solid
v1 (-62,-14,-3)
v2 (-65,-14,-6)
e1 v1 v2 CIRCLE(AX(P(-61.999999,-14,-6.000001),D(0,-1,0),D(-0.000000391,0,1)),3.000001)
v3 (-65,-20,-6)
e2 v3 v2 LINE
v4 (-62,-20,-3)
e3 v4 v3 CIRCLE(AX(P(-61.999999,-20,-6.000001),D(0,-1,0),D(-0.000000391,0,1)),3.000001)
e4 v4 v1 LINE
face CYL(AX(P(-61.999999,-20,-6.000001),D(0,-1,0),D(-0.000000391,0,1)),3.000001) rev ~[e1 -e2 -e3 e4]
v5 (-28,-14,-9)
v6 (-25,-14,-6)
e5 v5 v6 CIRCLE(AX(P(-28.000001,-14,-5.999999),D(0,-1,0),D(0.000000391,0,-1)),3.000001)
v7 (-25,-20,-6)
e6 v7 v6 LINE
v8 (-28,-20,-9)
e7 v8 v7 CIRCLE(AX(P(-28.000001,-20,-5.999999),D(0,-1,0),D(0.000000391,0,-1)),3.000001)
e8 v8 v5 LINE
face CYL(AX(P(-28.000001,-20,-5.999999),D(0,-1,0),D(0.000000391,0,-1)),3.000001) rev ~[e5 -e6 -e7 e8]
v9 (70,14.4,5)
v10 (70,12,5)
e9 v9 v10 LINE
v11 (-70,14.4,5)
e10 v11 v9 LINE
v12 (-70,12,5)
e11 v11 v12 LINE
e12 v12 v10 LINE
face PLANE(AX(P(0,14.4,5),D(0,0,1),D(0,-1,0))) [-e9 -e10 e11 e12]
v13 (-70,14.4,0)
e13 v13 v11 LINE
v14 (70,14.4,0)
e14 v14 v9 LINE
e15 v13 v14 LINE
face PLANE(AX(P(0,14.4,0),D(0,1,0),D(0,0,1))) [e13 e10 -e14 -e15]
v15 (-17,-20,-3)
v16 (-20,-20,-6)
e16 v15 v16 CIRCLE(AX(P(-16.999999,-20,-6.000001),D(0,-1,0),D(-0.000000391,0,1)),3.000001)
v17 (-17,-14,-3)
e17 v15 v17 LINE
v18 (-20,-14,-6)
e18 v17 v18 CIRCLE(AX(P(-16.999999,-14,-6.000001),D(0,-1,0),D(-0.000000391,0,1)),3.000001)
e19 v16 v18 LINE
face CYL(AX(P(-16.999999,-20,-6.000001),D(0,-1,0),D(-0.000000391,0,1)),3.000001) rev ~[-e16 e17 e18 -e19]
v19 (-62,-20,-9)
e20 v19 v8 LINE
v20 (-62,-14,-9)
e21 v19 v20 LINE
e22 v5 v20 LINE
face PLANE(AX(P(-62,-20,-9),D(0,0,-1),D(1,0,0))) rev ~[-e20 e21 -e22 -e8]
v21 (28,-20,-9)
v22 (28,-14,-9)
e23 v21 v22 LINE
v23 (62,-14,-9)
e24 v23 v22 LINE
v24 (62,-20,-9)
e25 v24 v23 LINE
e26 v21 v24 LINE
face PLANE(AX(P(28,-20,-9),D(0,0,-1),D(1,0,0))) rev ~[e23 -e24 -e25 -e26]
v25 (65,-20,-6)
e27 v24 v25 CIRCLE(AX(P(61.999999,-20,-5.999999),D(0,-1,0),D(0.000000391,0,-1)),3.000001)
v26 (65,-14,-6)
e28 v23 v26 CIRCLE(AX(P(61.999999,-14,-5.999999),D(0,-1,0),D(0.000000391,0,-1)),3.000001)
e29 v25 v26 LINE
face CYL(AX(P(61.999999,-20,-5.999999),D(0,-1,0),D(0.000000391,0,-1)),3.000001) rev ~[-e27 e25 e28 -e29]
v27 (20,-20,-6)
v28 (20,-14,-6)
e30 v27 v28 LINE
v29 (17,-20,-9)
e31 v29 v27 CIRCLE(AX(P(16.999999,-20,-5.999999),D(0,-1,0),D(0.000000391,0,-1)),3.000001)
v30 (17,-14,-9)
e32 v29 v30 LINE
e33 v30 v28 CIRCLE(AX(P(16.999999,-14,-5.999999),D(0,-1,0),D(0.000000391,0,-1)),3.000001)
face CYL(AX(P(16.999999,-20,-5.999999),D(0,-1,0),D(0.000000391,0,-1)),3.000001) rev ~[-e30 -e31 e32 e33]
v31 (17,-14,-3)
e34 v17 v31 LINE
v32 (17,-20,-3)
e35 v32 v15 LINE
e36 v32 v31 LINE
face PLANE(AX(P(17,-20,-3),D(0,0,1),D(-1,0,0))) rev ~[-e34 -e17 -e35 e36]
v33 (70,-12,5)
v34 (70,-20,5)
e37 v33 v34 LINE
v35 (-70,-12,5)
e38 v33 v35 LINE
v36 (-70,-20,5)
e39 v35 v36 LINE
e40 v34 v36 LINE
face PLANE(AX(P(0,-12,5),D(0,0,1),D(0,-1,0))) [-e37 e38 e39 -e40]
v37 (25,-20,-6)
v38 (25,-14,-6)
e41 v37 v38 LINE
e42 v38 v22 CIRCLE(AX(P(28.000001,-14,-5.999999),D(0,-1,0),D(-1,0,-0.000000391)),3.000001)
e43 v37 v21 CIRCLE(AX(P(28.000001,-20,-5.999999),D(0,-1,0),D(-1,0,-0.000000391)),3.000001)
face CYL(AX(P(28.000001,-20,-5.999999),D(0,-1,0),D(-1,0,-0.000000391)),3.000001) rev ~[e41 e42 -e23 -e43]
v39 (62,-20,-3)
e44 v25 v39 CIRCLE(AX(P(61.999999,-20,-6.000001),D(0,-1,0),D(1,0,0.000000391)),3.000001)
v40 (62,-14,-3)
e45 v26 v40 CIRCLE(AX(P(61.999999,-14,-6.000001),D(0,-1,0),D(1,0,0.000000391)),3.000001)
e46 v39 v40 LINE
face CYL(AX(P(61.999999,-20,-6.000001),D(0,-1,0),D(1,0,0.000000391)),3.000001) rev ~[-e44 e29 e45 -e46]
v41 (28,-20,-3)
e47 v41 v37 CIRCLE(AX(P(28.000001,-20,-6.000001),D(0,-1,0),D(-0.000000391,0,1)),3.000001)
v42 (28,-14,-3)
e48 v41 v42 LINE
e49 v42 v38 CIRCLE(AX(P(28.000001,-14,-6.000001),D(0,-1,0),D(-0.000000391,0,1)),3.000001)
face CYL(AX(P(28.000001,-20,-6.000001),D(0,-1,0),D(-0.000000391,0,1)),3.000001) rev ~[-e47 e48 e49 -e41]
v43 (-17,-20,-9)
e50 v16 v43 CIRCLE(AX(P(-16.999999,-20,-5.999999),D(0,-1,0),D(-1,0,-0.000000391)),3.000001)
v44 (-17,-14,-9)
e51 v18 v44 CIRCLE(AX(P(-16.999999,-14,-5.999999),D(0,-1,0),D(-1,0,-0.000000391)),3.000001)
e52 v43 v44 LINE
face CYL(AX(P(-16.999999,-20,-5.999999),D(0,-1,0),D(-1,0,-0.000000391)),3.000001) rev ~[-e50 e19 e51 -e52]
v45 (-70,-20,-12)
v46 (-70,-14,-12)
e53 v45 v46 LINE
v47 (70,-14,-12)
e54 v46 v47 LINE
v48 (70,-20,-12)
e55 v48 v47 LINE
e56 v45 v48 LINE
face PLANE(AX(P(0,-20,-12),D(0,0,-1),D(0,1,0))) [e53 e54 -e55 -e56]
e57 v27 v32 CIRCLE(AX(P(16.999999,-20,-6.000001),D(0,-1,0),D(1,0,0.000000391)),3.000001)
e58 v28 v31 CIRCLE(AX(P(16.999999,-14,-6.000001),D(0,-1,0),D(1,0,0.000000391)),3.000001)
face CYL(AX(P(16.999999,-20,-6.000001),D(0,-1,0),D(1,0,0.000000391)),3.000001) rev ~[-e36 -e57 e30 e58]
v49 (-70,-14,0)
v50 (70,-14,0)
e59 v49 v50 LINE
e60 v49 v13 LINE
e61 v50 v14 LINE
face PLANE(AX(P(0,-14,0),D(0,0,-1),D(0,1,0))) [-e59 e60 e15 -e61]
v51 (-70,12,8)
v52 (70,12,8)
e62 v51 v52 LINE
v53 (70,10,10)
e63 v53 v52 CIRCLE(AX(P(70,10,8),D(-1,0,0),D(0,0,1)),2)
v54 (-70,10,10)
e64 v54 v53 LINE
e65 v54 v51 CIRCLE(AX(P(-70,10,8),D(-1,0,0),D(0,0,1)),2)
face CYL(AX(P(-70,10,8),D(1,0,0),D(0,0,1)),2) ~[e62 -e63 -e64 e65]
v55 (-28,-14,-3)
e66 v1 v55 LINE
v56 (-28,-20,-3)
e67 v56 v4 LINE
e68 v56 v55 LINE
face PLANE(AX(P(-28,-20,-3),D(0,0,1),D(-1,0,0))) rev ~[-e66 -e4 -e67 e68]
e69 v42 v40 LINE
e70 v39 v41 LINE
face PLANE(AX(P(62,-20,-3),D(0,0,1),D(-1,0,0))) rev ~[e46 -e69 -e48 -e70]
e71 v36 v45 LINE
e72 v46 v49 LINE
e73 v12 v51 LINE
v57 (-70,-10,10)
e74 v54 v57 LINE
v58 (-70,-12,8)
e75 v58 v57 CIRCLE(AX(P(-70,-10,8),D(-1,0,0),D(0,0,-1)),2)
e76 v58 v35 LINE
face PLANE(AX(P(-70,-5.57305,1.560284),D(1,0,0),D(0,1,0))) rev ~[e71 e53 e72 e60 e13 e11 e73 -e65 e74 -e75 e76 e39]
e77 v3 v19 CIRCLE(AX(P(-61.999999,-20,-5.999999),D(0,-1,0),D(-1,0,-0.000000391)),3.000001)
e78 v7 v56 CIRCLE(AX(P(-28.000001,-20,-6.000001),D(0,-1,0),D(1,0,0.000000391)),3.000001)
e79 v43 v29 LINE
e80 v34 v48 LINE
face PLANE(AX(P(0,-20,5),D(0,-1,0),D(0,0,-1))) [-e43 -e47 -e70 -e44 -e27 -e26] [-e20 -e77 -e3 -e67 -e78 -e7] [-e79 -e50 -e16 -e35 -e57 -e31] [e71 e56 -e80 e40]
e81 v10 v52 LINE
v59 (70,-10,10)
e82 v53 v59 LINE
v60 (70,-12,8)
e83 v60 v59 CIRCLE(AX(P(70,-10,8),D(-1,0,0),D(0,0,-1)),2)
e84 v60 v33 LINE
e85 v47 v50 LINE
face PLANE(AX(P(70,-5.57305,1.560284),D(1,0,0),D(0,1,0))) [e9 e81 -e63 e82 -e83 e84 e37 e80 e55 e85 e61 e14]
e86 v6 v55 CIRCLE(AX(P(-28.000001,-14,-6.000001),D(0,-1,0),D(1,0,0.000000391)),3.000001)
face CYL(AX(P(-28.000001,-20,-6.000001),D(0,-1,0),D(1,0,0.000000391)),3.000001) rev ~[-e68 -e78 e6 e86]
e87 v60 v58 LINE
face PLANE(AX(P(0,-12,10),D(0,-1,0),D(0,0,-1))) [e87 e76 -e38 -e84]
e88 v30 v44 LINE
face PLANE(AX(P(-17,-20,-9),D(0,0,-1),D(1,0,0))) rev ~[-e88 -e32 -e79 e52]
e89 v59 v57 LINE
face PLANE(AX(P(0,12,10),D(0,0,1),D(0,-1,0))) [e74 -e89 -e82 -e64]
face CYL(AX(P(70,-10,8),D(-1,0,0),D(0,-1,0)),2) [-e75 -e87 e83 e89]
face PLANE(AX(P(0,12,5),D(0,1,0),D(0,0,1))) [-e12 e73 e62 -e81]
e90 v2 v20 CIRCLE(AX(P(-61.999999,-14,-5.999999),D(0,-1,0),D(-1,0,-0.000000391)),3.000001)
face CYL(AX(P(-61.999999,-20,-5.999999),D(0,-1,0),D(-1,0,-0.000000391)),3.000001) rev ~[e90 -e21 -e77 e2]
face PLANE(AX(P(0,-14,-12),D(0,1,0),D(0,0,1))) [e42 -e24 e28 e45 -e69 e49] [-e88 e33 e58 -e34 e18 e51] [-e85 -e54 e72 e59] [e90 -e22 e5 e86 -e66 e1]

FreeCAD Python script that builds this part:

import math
import FreeCAD as App
import Part
import Sketcher


def edges_at(feature, points):
    """Names of the edges that pass closest to the given points."""
    edges = feature.Shape.Edges
    near = lambda p: min(range(len(edges)), key=lambda i: edges[i].distToShape(Part.Vertex(*p))[0])
    return sorted({f"Edge{near(p) + 1}" for p in points})


def add_polygon(sketch, points):
    """Adds a closed chain of lines whose ends are joined by coincident constraints."""
    first, n = sketch.GeometryCount, len(points)
    for a, b in zip(points, points[1:] + points[:1]):
        sketch.addGeometry(Part.LineSegment(App.Vector(*a, 0), App.Vector(*b, 0)), False)
    for i in range(n):
        sketch.addConstraint(Sketcher.Constraint("Coincident", first + i, 2, first + (i + 1) % n, 1))

doc = App.newDocument("Part")
params = doc.addObject("Spreadsheet::Sheet", "Params")
for row, (alias, value) in enumerate([
    ("sketch1_width", "6 mm"),
    ("sketch1_width2", "24 mm"),
    ("sketch1_width3", "8 mm"),
    ("sketch1_height", "17 mm"),
    ("sketch1_height2", "12 mm"),
    ("pad1_length", "140 mm"),
    ("fillet_radius", "2 mm"),
    ("sketch2_radius", "3.000001 mm"),
    ("sketch2_width", "34 mm"),
    ("pocket1_length", "25 mm"),
], start=1):
    params.set(f"A{row}", alias)
    params.set(f"B{row}", "=" + value)
    params.setAlias(f"B{row}", alias)

body = doc.addObject("PartDesign::Body", "Body")

# Sketch on YZ plane
sketch1 = body.newObject("Sketcher::SketchObject", "Sketch")
sketch1.AttachmentSupport = (doc.getObject("YZ_Plane"), [""])
sketch1.MapMode = "FlatFace"
add_polygon(sketch1, [(-20, 5), (-20, -12), (-14, -12), (-14, 0), (14.4, 0), (14.4, 5), (12, 5), (12, 10), (-12, 10), (-12, 5)])  # lines 0-9
sketch1.addConstraint([
    Sketcher.Constraint("Vertical", 0),
    Sketcher.Constraint("Horizontal", 1),
    Sketcher.Constraint("Vertical", 2),
    Sketcher.Constraint("Horizontal", 3),
    Sketcher.Constraint("Vertical", 4),
    Sketcher.Constraint("Horizontal", 5),
    Sketcher.Constraint("Vertical", 6),
    Sketcher.Constraint("Horizontal", 7),
    Sketcher.Constraint("Vertical", 8),
    Sketcher.Constraint("Horizontal", 9),
    Sketcher.Constraint("Symmetric", 5, 2, 8, 2, -2),
    Sketcher.Constraint("PointOnObject", 2, 2, -1),
    Sketcher.Constraint("Equal", 4, 6),
    Sketcher.Constraint("DistanceX", 1, 1, 1, 2, 6.0),
    Sketcher.Constraint("DistanceX", 7, 2, 7, 1, 24.0),
    Sketcher.Constraint("DistanceX", 9, 2, 9, 1, 8.0),
    Sketcher.Constraint("DistanceY", 0, 2, 0, 1, 17.0),
    Sketcher.Constraint("DistanceY", 2, 1, 2, 2, 12.0),
    Sketcher.Constraint("DistanceX", 3, 1, 3, 2, 28.4),
])
sketch1.setExpression("Constraints[23]", "Params.sketch1_width")
sketch1.setExpression("Constraints[24]", "Params.sketch1_width2")
sketch1.setExpression("Constraints[25]", "Params.sketch1_width3")
sketch1.setExpression("Constraints[26]", "Params.sketch1_height")
sketch1.setExpression("Constraints[27]", "Params.sketch1_height2")
pad1 = body.newObject("PartDesign::Pad", "Pad")
pad1.Profile = sketch1
pad1.setExpression("Length", "Params.pad1_length")
pad1.Midplane = True
doc.recompute()

fillet = body.newObject("PartDesign::Fillet", "Fillet")
fillet.Base = (pad1, edges_at(pad1, [(0, -12, 10), (0, 12, 10)]))
fillet.setExpression("Radius", "Params.fillet_radius")

# Sketch on XZ plane
sketch2 = body.newObject("Sketcher::SketchObject", "Sketch001")
sketch2.AttachmentSupport = (doc.getObject("XZ_Plane"), [""])
sketch2.MapMode = "FlatFace"
sketch2.AttachmentOffset = App.Placement(App.Vector(0, 0, 20), App.Rotation())
sketch2.addGeometry([
    Part.LineSegment(App.Vector(-28, -3, 0), App.Vector(-62, -3, 0)),  # 0
    Part.ArcOfCircle(Part.Circle(App.Vector(-61.999999, -6.000001, 0), App.Vector(0, 0, 1), 3.000001), math.radians(90.000022), math.radians(179.999978)),  # 1
    Part.ArcOfCircle(Part.Circle(App.Vector(-61.999999, -5.999999, 0), App.Vector(0, 0, 1), 3.000001), math.radians(-179.999978), math.radians(-90.000022)),  # 2
    Part.LineSegment(App.Vector(-62, -9, 0), App.Vector(-28, -9, 0)),  # 3
    Part.ArcOfCircle(Part.Circle(App.Vector(-28.000001, -5.999999, 0), App.Vector(0, 0, 1), 3.000001), math.radians(-89.999978), math.radians(-0.000022)),  # 4
    Part.ArcOfCircle(Part.Circle(App.Vector(-28.000001, -6.000001, 0), App.Vector(0, 0, 1), 3.000001), math.radians(0.000022), math.radians(89.999978)),  # 5
    Part.LineSegment(App.Vector(17, -3, 0), App.Vector(-17, -3, 0)),  # 6
    Part.ArcOfCircle(Part.Circle(App.Vector(-16.999999, -6.000001, 0), App.Vector(0, 0, 1), 3.000001), math.radians(90.000022), math.radians(179.999978)),  # 7
    Part.ArcOfCircle(Part.Circle(App.Vector(-16.999999, -5.999999, 0), App.Vector(0, 0, 1), 3.000001), math.radians(-179.999978), math.radians(-90.000022)),  # 8
    Part.LineSegment(App.Vector(-17, -9, 0), App.Vector(17, -9, 0)),  # 9
    Part.ArcOfCircle(Part.Circle(App.Vector(16.999999, -5.999999, 0), App.Vector(0, 0, 1), 3.000001), math.radians(-89.999978), math.radians(-0.000022)),  # 10
    Part.ArcOfCircle(Part.Circle(App.Vector(16.999999, -6.000001, 0), App.Vector(0, 0, 1), 3.000001), math.radians(0.000022), math.radians(89.999978)),  # 11
    Part.LineSegment(App.Vector(62, -3, 0), App.Vector(28, -3, 0)),  # 12
    Part.ArcOfCircle(Part.Circle(App.Vector(28.000001, -6.000001, 0), App.Vector(0, 0, 1), 3.000001), math.radians(90.000022), math.radians(179.999978)),  # 13
    Part.ArcOfCircle(Part.Circle(App.Vector(28.000001, -5.999999, 0), App.Vector(0, 0, 1), 3.000001), math.radians(-179.999978), math.radians(-90.000022)),  # 14
    Part.LineSegment(App.Vector(28, -9, 0), App.Vector(62, -9, 0)),  # 15
    Part.ArcOfCircle(Part.Circle(App.Vector(61.999999, -5.999999, 0), App.Vector(0, 0, 1), 3.000001), math.radians(-89.999978), math.radians(-0.000022)),  # 16
    Part.ArcOfCircle(Part.Circle(App.Vector(61.999999, -6.000001, 0), App.Vector(0, 0, 1), 3.000001), math.radians(0.000022), math.radians(89.999978)),  # 17
], False)
sketch2.addConstraint([
    Sketcher.Constraint("Tangent", 0, 2, 1, 1),
    Sketcher.Constraint("Tangent", 1, 2, 2, 1),
    Sketcher.Constraint("Tangent", 2, 2, 3, 1),
    Sketcher.Constraint("Tangent", 3, 2, 4, 1),
    Sketcher.Constraint("Tangent", 4, 2, 5, 1),
    Sketcher.Constraint("Tangent", 5, 2, 0, 1),
    Sketcher.Constraint("Tangent", 6, 2, 7, 1),
    Sketcher.Constraint("Tangent", 7, 2, 8, 1),
    Sketcher.Constraint("Tangent", 8, 2, 9, 1),
    Sketcher.Constraint("Tangent", 9, 2, 10, 1),
    Sketcher.Constraint("Tangent", 10, 2, 11, 1),
    Sketcher.Constraint("Tangent", 11, 2, 6, 1),
    Sketcher.Constraint("Tangent", 12, 2, 13, 1),
    Sketcher.Constraint("Tangent", 13, 2, 14, 1),
    Sketcher.Constraint("Tangent", 14, 2, 15, 1),
    Sketcher.Constraint("Tangent", 15, 2, 16, 1),
    Sketcher.Constraint("Tangent", 16, 2, 17, 1),
    Sketcher.Constraint("Tangent", 17, 2, 12, 1),
    Sketcher.Constraint("Horizontal", 0),
    Sketcher.Constraint("Horizontal", 3),
    Sketcher.Constraint("Horizontal", 6),
    Sketcher.Constraint("Horizontal", 9),
    Sketcher.Constraint("Horizontal", 12),
    Sketcher.Constraint("Horizontal", 15),
    Sketcher.Constraint("Equal", 1, 2),
    Sketcher.Constraint("Equal", 2, 4),
    Sketcher.Constraint("Equal", 5, 7),
    Sketcher.Constraint("Equal", 7, 8),
    Sketcher.Constraint("Equal", 8, 10),
    Sketcher.Constraint("Equal", 11, 13),
    Sketcher.Constraint("Equal", 13, 14),
    Sketcher.Constraint("Equal", 14, 16),
    Sketcher.Constraint("Symmetric", 4, 3, 13, 3, -2),
    Sketcher.Constraint("Symmetric", 7, 2, 10, 2, -2),
    Sketcher.Constraint("Symmetric", 1, 2, 16, 2, -2),
    Sketcher.Constraint("Horizontal", 5, 3, 7, 3),
    Sketcher.Constraint("Horizontal", 17, 3, 1, 2),
    Sketcher.Constraint("Horizontal", 1, 2, 4, 2),
    Sketcher.Constraint("Horizontal", 4, 2, 7, 2),
    Sketcher.Constraint("Horizontal", 10, 2, 13, 2),
    Sketcher.Constraint("Equal", 3, 6),
    Sketcher.Constraint("Radius", 1, 3.000001),
    Sketcher.Constraint("DistanceX", 0, 2, 0, 1, 34.0),
    Sketcher.Constraint("DistanceX", 1, 3, -1, 1, 61.999999),
    Sketcher.Constraint("DistanceY", 1, 3, -1, 1, 6.000001),
])
sketch2.setExpression("Constraints[41]", "Params.sketch2_radius")
sketch2.setExpression("Constraints[42]", "Params.sketch2_width")
pocket1 = body.newObject("PartDesign::Pocket", "Pocket")
pocket1.Profile = sketch2
pocket1.setExpression("Length", "Params.pocket1_length")

doc.recompute()
